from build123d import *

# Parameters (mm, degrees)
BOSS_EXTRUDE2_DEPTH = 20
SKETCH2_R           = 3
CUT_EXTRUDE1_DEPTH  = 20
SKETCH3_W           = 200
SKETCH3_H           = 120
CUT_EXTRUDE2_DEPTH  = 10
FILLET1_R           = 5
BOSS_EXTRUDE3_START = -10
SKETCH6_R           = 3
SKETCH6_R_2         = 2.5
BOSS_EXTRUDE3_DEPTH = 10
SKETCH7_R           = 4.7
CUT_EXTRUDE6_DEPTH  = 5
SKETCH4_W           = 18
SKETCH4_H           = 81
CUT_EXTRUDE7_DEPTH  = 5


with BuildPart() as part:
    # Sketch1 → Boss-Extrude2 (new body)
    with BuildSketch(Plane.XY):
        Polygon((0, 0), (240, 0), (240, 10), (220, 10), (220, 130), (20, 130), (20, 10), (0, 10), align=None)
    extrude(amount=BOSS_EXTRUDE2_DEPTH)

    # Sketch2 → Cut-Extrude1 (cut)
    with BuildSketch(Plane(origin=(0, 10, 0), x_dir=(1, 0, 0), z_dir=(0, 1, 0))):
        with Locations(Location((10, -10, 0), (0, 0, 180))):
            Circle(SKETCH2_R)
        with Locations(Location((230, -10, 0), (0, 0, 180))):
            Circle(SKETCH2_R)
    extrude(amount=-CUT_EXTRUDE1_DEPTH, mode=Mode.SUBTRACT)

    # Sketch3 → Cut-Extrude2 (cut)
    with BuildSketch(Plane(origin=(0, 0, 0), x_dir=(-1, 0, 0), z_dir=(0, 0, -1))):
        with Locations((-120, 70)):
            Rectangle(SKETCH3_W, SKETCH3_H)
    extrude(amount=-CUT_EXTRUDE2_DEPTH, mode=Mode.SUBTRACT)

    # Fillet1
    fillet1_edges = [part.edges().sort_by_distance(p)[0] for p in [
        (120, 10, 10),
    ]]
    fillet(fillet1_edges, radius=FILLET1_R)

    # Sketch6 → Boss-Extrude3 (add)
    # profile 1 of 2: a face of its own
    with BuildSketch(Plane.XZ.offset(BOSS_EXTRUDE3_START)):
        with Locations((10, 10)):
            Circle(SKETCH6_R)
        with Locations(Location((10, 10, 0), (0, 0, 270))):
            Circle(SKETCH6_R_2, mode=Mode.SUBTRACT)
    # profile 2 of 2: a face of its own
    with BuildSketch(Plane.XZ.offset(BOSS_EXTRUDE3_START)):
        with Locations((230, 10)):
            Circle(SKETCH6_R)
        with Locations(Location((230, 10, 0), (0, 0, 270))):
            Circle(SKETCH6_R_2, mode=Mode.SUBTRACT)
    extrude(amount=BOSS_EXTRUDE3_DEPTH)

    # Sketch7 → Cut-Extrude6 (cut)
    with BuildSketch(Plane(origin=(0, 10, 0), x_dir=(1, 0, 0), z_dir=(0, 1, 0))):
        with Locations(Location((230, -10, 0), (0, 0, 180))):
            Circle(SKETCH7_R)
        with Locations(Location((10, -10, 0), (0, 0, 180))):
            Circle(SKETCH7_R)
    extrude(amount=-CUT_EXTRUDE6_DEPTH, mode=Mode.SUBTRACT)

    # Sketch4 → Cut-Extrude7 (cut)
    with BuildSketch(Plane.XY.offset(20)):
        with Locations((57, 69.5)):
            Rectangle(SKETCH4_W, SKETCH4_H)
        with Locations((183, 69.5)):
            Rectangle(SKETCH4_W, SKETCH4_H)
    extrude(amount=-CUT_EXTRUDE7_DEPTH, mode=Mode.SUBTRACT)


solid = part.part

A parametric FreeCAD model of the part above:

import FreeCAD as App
import Part
import Sketcher


def edges_at(feature, points):
    """Names of the edges that pass closest to the given points."""
    edges = feature.Shape.Edges
    near = lambda p: min(range(len(edges)), key=lambda i: edges[i].distToShape(Part.Vertex(*p))[0])
    return sorted({f"Edge{near(p) + 1}" for p in points})


def add_polygon(sketch, points):
    """Adds a closed chain of lines whose ends are joined by coincident constraints."""
    first, n = sketch.GeometryCount, len(points)
    for a, b in zip(points, points[1:] + points[:1]):
        sketch.addGeometry(Part.LineSegment(App.Vector(*a, 0), App.Vector(*b, 0)), False)
    for i in range(n):
        sketch.addConstraint(Sketcher.Constraint("Coincident", first + i, 2, first + (i + 1) % n, 1))

doc = App.newDocument("Part")
params = doc.addObject("Spreadsheet::Sheet", "Params")
for row, (alias, value) in enumerate([
    ("sketch1_width", "240 mm"),
    ("sketch1_width2", "20 mm"),
    ("sketch1_height", "10 mm"),
    ("sketch1_height2", "120 mm"),
    ("pad1_length", "20 mm"),
    ("sketch2_diameter", "6 mm"),
    ("pocket1_length", "20 mm"),
    ("sketch3_width", "200 mm"),
    ("sketch3_height", "120 mm"),
    ("pocket2_length", "10 mm"),
    ("fillet_radius", "5 mm"),
    ("sketch4_diameter", "6 mm"),
    ("sketch4_diameter2", "5 mm"),
    ("pad2_length", "10 mm"),
    ("sketch5_diameter", "9.4 mm"),
    ("pocket3_length", "5 mm"),
    ("sketch6_width", "18 mm"),
    ("sketch6_height", "81 mm"),
    ("pocket4_length", "5 mm"),
], start=1):
    params.set(f"A{row}", alias)
    params.set(f"B{row}", "=" + value)
    params.setAlias(f"B{row}", alias)

body = doc.addObject("PartDesign::Body", "Body")

sketch1 = body.newObject("Sketcher::SketchObject", "Sketch")
sketch1.AttachmentSupport = (doc.getObject("XY_Plane"), [""])
sketch1.MapMode = "FlatFace"
add_polygon(sketch1, [(0, 0), (240, 0), (240, 10), (220, 10), (220, 130), (20, 130), (20, 10), (0, 10)])
sketch1.addConstraint(Sketcher.Constraint("Horizontal", 0))
sketch1.addConstraint(Sketcher.Constraint("Vertical", 1))
sketch1.addConstraint(Sketcher.Constraint("Horizontal", 2))
sketch1.addConstraint(Sketcher.Constraint("Vertical", 3))
sketch1.addConstraint(Sketcher.Constraint("Horizontal", 4))
sketch1.addConstraint(Sketcher.Constraint("Vertical", 5))
sketch1.addConstraint(Sketcher.Constraint("Horizontal", 6))
sketch1.addConstraint(Sketcher.Constraint("Vertical", 7))
sketch1.addConstraint(Sketcher.Constraint("Coincident", 7, 2, -1, 1))
sketch1.addConstraint(Sketcher.Constraint("Horizontal", 2, 2, 5, 2))
sketch1.addConstraint(Sketcher.Constraint("Equal", 2, 6))
sketch1.addConstraint(Sketcher.Constraint("DistanceX", 0, 1, 0, 2, 240.0))
sketch1.addConstraint(Sketcher.Constraint("DistanceX", 2, 2, 2, 1, 20.0))
sketch1.addConstraint(Sketcher.Constraint("DistanceY", 1, 1, 1, 2, 10.0))
sketch1.addConstraint(Sketcher.Constraint("DistanceY", 3, 1, 3, 2, 120.0))
sketch1.setExpression("Constraints[19]", "Params.sketch1_width")
sketch1.setExpression("Constraints[20]", "Params.sketch1_width2")
sketch1.setExpression("Constraints[21]", "Params.sketch1_height")
sketch1.setExpression("Constraints[22]", "Params.sketch1_height2")
pad1 = body.newObject("PartDesign::Pad", "Pad")
pad1.Profile = sketch1
pad1.setExpression("Length", "Params.pad1_length")

sketch2 = body.newObject("Sketcher::SketchObject", "Sketch001")
sketch2.AttachmentSupport = (doc.getObject("XZ_Plane"), [""])
sketch2.MapMode = "FlatFace"
sketch2.AttachmentOffset = App.Placement(App.Vector(0, 0, -10), App.Rotation())
sketch2.addGeometry(Part.Circle(App.Vector(10, 10, 0), App.Vector(0, 0, 1), 3), False)
sketch2.addGeometry(Part.Circle(App.Vector(230, 10, 0), App.Vector(0, 0, 1), 3), False)
sketch2.addConstraint(Sketcher.Constraint("Equal", 0, 1))
sketch2.addConstraint(Sketcher.Constraint("Horizontal", 0, 3, 1, 3))
sketch2.addConstraint(Sketcher.Constraint("Diameter", 0, 6.0))
sketch2.addConstraint(Sketcher.Constraint("DistanceX", -1, 1, 0, 3, 10.0))
sketch2.addConstraint(Sketcher.Constraint("DistanceY", -1, 1, 0, 3, 10.0))
sketch2.addConstraint(Sketcher.Constraint("DistanceX", -1, 1, 1, 3, 230.0))
sketch2.setExpression("Constraints[2]", "Params.sketch2_diameter")
pocket1 = body.newObject("PartDesign::Pocket", "Pocket")
pocket1.Profile = sketch2
pocket1.setExpression("Length", "Params.pocket1_length")
pocket1.Reversed = True

sketch3 = body.newObject("Sketcher::SketchObject", "Sketch002")
sketch3.AttachmentSupport = (doc.getObject("XY_Plane"), [""])
sketch3.MapMode = "FlatFace"
add_polygon(sketch3, [(220, 130), (220, 10), (20, 10), (20, 130)])
sketch3.addConstraint(Sketcher.Constraint("Vertical", 0))
sketch3.addConstraint(Sketcher.Constraint("Horizontal", 1))
sketch3.addConstraint(Sketcher.Constraint("Vertical", 2))
sketch3.addConstraint(Sketcher.Constraint("Horizontal", 3))
sketch3.addConstraint(Sketcher.Constraint("DistanceX", 1, 2, 1, 1, 200.0))
sketch3.addConstraint(Sketcher.Constraint("DistanceY", 0, 2, 0, 1, 120.0))
sketch3.addConstraint(Sketcher.Constraint("DistanceX", -1, 1, 0, 2, 220.0))
sketch3.addConstraint(Sketcher.Constraint("DistanceY", -1, 1, 0, 2, 10.0))
sketch3.setExpression("Constraints[8]", "Params.sketch3_width")
sketch3.setExpression("Constraints[9]", "Params.sketch3_height")
pocket2 = body.newObject("PartDesign::Pocket", "Pocket001")
pocket2.Profile = sketch3
pocket2.setExpression("Length", "Params.pocket2_length")
pocket2.Reversed = True
doc.recompute()

fillet = body.newObject("PartDesign::Fillet", "Fillet")
fillet.Base = (pocket2, edges_at(pocket2, [(120, 10, 10)]))
fillet.setExpression("Radius", "Params.fillet_radius")

sketch4 = body.newObject("Sketcher::SketchObject", "Sketch003")
sketch4.AttachmentSupport = (doc.getObject("XZ_Plane"), [""])
sketch4.MapMode = "FlatFace"
sketch4.AttachmentOffset = App.Placement(App.Vector(0, 0, -10), App.Rotation())
sketch4.addGeometry(Part.Circle(App.Vector(10, 10, 0), App.Vector(0, 0, 1), 3), False)
sketch4.addGeometry(Part.Circle(App.Vector(10, 10, 0), App.Vector(0, 0, 1), 2.5), False)
sketch4.addGeometry(Part.Circle(App.Vector(230, 10, 0), App.Vector(0, 0, 1), 3), False)
sketch4.addGeometry(Part.Circle(App.Vector(230, 10, 0), App.Vector(0, 0, 1), 2.5), False)
sketch4.addConstraint(Sketcher.Constraint("Coincident", 1, 3, 0, 3))
sketch4.addConstraint(Sketcher.Constraint("Coincident", 3, 3, 2, 3))
sketch4.addConstraint(Sketcher.Constraint("Equal", 0, 2))
sketch4.addConstraint(Sketcher.Constraint("Equal", 1, 3))
sketch4.addConstraint(Sketcher.Constraint("Horizontal", 1, 3, 2, 3))
sketch4.addConstraint(Sketcher.Constraint("Diameter", 0, 6.0))
sketch4.addConstraint(Sketcher.Constraint("Diameter", 1, 5.0))
sketch4.addConstraint(Sketcher.Constraint("DistanceX", -1, 1, 0, 3, 10.0))
sketch4.addConstraint(Sketcher.Constraint("DistanceY", -1, 1, 0, 3, 10.0))
sketch4.addConstraint(Sketcher.Constraint("DistanceX", -1, 1, 2, 3, 230.0))
sketch4.setExpression("Constraints[5]", "Params.sketch4_diameter")
sketch4.setExpression("Constraints[6]", "Params.sketch4_diameter2")
pad2 = body.newObject("PartDesign::Pad", "Pad001")
pad2.Profile = sketch4
pad2.setExpression("Length", "Params.pad2_length")

sketch5 = body.newObject("Sketcher::SketchObject", "Sketch004")
sketch5.AttachmentSupport = (doc.getObject("XZ_Plane"), [""])
sketch5.MapMode = "FlatFace"
sketch5.AttachmentOffset = App.Placement(App.Vector(0, 0, -10), App.Rotation())
sketch5.addGeometry(Part.Circle(App.Vector(230, 10, 0), App.Vector(0, 0, 1), 4.7), False)
sketch5.addGeometry(Part.Circle(App.Vector(10, 10, 0), App.Vector(0, 0, 1), 4.7), False)
sketch5.addConstraint(Sketcher.Constraint("Equal", 0, 1))
sketch5.addConstraint(Sketcher.Constraint("Horizontal", 0, 3, 1, 3))
sketch5.addConstraint(Sketcher.Constraint("Diameter", 0, 9.4))
sketch5.addConstraint(Sketcher.Constraint("DistanceX", -1, 1, 0, 3, 230.0))
sketch5.addConstraint(Sketcher.Constraint("DistanceY", -1, 1, 0, 3, 10.0))
sketch5.addConstraint(Sketcher.Constraint("DistanceX", -1, 1, 1, 3, 10.0))
sketch5.setExpression("Constraints[2]", "Params.sketch5_diameter")
pocket3 = body.newObject("PartDesign::Pocket", "Pocket002")
pocket3.Profile = sketch5
pocket3.setExpression("Length", "Params.pocket3_length")
pocket3.Reversed = True

sketch6 = body.newObject("Sketcher::SketchObject", "Sketch005")
sketch6.AttachmentSupport = (doc.getObject("XY_Plane"), [""])
sketch6.MapMode = "FlatFace"
sketch6.AttachmentOffset = App.Placement(App.Vector(0, 0, 20), App.Rotation())
add_polygon(sketch6, [(48, 110), (48, 29), (66, 29), (66, 110)])
add_polygon(sketch6, [(174, 110), (174, 29), (192, 29), (192, 110)])
sketch6.addConstraint(Sketcher.Constraint("Vertical", 0))
sketch6.addConstraint(Sketcher.Constraint("Horizontal", 1))
sketch6.addConstraint(Sketcher.Constraint("Vertical", 2))
sketch6.addConstraint(Sketcher.Constraint("Horizontal", 3))
sketch6.addConstraint(Sketcher.Constraint("Vertical", 4))
sketch6.addConstraint(Sketcher.Constraint("Horizontal", 5))
sketch6.addConstraint(Sketcher.Constraint("Vertical", 6))
sketch6.addConstraint(Sketcher.Constraint("Horizontal", 7))
sketch6.addConstraint(Sketcher.Constraint("Horizontal", 1, 2, 4, 2))
sketch6.addConstraint(Sketcher.Constraint("Horizontal", 3, 2, 6, 2))
sketch6.addConstraint(Sketcher.Constraint("Equal", 3, 5))
sketch6.addConstraint(Sketcher.Constraint("DistanceX", 1, 1, 1, 2, 18.0))
sketch6.addConstraint(Sketcher.Constraint("DistanceY", 0, 2, 0, 1, 81.0))
sketch6.addConstraint(Sketcher.Constraint("DistanceX", -1, 1, 0, 2, 48.0))
sketch6.addConstraint(Sketcher.Constraint("DistanceY", -1, 1, 0, 2, 29.0))
sketch6.addConstraint(Sketcher.Constraint("DistanceX", -1, 1, 4, 2, 174.0))
sketch6.setExpression("Constraints[19]", "Params.sketch6_width")
sketch6.setExpression("Constraints[20]", "Params.sketch6_height")
pocket4 = body.newObject("PartDesign::Pocket", "Pocket003")
pocket4.Profile = sketch6
pocket4.setExpression("Length", "Params.pocket4_length")

doc.recompute()
